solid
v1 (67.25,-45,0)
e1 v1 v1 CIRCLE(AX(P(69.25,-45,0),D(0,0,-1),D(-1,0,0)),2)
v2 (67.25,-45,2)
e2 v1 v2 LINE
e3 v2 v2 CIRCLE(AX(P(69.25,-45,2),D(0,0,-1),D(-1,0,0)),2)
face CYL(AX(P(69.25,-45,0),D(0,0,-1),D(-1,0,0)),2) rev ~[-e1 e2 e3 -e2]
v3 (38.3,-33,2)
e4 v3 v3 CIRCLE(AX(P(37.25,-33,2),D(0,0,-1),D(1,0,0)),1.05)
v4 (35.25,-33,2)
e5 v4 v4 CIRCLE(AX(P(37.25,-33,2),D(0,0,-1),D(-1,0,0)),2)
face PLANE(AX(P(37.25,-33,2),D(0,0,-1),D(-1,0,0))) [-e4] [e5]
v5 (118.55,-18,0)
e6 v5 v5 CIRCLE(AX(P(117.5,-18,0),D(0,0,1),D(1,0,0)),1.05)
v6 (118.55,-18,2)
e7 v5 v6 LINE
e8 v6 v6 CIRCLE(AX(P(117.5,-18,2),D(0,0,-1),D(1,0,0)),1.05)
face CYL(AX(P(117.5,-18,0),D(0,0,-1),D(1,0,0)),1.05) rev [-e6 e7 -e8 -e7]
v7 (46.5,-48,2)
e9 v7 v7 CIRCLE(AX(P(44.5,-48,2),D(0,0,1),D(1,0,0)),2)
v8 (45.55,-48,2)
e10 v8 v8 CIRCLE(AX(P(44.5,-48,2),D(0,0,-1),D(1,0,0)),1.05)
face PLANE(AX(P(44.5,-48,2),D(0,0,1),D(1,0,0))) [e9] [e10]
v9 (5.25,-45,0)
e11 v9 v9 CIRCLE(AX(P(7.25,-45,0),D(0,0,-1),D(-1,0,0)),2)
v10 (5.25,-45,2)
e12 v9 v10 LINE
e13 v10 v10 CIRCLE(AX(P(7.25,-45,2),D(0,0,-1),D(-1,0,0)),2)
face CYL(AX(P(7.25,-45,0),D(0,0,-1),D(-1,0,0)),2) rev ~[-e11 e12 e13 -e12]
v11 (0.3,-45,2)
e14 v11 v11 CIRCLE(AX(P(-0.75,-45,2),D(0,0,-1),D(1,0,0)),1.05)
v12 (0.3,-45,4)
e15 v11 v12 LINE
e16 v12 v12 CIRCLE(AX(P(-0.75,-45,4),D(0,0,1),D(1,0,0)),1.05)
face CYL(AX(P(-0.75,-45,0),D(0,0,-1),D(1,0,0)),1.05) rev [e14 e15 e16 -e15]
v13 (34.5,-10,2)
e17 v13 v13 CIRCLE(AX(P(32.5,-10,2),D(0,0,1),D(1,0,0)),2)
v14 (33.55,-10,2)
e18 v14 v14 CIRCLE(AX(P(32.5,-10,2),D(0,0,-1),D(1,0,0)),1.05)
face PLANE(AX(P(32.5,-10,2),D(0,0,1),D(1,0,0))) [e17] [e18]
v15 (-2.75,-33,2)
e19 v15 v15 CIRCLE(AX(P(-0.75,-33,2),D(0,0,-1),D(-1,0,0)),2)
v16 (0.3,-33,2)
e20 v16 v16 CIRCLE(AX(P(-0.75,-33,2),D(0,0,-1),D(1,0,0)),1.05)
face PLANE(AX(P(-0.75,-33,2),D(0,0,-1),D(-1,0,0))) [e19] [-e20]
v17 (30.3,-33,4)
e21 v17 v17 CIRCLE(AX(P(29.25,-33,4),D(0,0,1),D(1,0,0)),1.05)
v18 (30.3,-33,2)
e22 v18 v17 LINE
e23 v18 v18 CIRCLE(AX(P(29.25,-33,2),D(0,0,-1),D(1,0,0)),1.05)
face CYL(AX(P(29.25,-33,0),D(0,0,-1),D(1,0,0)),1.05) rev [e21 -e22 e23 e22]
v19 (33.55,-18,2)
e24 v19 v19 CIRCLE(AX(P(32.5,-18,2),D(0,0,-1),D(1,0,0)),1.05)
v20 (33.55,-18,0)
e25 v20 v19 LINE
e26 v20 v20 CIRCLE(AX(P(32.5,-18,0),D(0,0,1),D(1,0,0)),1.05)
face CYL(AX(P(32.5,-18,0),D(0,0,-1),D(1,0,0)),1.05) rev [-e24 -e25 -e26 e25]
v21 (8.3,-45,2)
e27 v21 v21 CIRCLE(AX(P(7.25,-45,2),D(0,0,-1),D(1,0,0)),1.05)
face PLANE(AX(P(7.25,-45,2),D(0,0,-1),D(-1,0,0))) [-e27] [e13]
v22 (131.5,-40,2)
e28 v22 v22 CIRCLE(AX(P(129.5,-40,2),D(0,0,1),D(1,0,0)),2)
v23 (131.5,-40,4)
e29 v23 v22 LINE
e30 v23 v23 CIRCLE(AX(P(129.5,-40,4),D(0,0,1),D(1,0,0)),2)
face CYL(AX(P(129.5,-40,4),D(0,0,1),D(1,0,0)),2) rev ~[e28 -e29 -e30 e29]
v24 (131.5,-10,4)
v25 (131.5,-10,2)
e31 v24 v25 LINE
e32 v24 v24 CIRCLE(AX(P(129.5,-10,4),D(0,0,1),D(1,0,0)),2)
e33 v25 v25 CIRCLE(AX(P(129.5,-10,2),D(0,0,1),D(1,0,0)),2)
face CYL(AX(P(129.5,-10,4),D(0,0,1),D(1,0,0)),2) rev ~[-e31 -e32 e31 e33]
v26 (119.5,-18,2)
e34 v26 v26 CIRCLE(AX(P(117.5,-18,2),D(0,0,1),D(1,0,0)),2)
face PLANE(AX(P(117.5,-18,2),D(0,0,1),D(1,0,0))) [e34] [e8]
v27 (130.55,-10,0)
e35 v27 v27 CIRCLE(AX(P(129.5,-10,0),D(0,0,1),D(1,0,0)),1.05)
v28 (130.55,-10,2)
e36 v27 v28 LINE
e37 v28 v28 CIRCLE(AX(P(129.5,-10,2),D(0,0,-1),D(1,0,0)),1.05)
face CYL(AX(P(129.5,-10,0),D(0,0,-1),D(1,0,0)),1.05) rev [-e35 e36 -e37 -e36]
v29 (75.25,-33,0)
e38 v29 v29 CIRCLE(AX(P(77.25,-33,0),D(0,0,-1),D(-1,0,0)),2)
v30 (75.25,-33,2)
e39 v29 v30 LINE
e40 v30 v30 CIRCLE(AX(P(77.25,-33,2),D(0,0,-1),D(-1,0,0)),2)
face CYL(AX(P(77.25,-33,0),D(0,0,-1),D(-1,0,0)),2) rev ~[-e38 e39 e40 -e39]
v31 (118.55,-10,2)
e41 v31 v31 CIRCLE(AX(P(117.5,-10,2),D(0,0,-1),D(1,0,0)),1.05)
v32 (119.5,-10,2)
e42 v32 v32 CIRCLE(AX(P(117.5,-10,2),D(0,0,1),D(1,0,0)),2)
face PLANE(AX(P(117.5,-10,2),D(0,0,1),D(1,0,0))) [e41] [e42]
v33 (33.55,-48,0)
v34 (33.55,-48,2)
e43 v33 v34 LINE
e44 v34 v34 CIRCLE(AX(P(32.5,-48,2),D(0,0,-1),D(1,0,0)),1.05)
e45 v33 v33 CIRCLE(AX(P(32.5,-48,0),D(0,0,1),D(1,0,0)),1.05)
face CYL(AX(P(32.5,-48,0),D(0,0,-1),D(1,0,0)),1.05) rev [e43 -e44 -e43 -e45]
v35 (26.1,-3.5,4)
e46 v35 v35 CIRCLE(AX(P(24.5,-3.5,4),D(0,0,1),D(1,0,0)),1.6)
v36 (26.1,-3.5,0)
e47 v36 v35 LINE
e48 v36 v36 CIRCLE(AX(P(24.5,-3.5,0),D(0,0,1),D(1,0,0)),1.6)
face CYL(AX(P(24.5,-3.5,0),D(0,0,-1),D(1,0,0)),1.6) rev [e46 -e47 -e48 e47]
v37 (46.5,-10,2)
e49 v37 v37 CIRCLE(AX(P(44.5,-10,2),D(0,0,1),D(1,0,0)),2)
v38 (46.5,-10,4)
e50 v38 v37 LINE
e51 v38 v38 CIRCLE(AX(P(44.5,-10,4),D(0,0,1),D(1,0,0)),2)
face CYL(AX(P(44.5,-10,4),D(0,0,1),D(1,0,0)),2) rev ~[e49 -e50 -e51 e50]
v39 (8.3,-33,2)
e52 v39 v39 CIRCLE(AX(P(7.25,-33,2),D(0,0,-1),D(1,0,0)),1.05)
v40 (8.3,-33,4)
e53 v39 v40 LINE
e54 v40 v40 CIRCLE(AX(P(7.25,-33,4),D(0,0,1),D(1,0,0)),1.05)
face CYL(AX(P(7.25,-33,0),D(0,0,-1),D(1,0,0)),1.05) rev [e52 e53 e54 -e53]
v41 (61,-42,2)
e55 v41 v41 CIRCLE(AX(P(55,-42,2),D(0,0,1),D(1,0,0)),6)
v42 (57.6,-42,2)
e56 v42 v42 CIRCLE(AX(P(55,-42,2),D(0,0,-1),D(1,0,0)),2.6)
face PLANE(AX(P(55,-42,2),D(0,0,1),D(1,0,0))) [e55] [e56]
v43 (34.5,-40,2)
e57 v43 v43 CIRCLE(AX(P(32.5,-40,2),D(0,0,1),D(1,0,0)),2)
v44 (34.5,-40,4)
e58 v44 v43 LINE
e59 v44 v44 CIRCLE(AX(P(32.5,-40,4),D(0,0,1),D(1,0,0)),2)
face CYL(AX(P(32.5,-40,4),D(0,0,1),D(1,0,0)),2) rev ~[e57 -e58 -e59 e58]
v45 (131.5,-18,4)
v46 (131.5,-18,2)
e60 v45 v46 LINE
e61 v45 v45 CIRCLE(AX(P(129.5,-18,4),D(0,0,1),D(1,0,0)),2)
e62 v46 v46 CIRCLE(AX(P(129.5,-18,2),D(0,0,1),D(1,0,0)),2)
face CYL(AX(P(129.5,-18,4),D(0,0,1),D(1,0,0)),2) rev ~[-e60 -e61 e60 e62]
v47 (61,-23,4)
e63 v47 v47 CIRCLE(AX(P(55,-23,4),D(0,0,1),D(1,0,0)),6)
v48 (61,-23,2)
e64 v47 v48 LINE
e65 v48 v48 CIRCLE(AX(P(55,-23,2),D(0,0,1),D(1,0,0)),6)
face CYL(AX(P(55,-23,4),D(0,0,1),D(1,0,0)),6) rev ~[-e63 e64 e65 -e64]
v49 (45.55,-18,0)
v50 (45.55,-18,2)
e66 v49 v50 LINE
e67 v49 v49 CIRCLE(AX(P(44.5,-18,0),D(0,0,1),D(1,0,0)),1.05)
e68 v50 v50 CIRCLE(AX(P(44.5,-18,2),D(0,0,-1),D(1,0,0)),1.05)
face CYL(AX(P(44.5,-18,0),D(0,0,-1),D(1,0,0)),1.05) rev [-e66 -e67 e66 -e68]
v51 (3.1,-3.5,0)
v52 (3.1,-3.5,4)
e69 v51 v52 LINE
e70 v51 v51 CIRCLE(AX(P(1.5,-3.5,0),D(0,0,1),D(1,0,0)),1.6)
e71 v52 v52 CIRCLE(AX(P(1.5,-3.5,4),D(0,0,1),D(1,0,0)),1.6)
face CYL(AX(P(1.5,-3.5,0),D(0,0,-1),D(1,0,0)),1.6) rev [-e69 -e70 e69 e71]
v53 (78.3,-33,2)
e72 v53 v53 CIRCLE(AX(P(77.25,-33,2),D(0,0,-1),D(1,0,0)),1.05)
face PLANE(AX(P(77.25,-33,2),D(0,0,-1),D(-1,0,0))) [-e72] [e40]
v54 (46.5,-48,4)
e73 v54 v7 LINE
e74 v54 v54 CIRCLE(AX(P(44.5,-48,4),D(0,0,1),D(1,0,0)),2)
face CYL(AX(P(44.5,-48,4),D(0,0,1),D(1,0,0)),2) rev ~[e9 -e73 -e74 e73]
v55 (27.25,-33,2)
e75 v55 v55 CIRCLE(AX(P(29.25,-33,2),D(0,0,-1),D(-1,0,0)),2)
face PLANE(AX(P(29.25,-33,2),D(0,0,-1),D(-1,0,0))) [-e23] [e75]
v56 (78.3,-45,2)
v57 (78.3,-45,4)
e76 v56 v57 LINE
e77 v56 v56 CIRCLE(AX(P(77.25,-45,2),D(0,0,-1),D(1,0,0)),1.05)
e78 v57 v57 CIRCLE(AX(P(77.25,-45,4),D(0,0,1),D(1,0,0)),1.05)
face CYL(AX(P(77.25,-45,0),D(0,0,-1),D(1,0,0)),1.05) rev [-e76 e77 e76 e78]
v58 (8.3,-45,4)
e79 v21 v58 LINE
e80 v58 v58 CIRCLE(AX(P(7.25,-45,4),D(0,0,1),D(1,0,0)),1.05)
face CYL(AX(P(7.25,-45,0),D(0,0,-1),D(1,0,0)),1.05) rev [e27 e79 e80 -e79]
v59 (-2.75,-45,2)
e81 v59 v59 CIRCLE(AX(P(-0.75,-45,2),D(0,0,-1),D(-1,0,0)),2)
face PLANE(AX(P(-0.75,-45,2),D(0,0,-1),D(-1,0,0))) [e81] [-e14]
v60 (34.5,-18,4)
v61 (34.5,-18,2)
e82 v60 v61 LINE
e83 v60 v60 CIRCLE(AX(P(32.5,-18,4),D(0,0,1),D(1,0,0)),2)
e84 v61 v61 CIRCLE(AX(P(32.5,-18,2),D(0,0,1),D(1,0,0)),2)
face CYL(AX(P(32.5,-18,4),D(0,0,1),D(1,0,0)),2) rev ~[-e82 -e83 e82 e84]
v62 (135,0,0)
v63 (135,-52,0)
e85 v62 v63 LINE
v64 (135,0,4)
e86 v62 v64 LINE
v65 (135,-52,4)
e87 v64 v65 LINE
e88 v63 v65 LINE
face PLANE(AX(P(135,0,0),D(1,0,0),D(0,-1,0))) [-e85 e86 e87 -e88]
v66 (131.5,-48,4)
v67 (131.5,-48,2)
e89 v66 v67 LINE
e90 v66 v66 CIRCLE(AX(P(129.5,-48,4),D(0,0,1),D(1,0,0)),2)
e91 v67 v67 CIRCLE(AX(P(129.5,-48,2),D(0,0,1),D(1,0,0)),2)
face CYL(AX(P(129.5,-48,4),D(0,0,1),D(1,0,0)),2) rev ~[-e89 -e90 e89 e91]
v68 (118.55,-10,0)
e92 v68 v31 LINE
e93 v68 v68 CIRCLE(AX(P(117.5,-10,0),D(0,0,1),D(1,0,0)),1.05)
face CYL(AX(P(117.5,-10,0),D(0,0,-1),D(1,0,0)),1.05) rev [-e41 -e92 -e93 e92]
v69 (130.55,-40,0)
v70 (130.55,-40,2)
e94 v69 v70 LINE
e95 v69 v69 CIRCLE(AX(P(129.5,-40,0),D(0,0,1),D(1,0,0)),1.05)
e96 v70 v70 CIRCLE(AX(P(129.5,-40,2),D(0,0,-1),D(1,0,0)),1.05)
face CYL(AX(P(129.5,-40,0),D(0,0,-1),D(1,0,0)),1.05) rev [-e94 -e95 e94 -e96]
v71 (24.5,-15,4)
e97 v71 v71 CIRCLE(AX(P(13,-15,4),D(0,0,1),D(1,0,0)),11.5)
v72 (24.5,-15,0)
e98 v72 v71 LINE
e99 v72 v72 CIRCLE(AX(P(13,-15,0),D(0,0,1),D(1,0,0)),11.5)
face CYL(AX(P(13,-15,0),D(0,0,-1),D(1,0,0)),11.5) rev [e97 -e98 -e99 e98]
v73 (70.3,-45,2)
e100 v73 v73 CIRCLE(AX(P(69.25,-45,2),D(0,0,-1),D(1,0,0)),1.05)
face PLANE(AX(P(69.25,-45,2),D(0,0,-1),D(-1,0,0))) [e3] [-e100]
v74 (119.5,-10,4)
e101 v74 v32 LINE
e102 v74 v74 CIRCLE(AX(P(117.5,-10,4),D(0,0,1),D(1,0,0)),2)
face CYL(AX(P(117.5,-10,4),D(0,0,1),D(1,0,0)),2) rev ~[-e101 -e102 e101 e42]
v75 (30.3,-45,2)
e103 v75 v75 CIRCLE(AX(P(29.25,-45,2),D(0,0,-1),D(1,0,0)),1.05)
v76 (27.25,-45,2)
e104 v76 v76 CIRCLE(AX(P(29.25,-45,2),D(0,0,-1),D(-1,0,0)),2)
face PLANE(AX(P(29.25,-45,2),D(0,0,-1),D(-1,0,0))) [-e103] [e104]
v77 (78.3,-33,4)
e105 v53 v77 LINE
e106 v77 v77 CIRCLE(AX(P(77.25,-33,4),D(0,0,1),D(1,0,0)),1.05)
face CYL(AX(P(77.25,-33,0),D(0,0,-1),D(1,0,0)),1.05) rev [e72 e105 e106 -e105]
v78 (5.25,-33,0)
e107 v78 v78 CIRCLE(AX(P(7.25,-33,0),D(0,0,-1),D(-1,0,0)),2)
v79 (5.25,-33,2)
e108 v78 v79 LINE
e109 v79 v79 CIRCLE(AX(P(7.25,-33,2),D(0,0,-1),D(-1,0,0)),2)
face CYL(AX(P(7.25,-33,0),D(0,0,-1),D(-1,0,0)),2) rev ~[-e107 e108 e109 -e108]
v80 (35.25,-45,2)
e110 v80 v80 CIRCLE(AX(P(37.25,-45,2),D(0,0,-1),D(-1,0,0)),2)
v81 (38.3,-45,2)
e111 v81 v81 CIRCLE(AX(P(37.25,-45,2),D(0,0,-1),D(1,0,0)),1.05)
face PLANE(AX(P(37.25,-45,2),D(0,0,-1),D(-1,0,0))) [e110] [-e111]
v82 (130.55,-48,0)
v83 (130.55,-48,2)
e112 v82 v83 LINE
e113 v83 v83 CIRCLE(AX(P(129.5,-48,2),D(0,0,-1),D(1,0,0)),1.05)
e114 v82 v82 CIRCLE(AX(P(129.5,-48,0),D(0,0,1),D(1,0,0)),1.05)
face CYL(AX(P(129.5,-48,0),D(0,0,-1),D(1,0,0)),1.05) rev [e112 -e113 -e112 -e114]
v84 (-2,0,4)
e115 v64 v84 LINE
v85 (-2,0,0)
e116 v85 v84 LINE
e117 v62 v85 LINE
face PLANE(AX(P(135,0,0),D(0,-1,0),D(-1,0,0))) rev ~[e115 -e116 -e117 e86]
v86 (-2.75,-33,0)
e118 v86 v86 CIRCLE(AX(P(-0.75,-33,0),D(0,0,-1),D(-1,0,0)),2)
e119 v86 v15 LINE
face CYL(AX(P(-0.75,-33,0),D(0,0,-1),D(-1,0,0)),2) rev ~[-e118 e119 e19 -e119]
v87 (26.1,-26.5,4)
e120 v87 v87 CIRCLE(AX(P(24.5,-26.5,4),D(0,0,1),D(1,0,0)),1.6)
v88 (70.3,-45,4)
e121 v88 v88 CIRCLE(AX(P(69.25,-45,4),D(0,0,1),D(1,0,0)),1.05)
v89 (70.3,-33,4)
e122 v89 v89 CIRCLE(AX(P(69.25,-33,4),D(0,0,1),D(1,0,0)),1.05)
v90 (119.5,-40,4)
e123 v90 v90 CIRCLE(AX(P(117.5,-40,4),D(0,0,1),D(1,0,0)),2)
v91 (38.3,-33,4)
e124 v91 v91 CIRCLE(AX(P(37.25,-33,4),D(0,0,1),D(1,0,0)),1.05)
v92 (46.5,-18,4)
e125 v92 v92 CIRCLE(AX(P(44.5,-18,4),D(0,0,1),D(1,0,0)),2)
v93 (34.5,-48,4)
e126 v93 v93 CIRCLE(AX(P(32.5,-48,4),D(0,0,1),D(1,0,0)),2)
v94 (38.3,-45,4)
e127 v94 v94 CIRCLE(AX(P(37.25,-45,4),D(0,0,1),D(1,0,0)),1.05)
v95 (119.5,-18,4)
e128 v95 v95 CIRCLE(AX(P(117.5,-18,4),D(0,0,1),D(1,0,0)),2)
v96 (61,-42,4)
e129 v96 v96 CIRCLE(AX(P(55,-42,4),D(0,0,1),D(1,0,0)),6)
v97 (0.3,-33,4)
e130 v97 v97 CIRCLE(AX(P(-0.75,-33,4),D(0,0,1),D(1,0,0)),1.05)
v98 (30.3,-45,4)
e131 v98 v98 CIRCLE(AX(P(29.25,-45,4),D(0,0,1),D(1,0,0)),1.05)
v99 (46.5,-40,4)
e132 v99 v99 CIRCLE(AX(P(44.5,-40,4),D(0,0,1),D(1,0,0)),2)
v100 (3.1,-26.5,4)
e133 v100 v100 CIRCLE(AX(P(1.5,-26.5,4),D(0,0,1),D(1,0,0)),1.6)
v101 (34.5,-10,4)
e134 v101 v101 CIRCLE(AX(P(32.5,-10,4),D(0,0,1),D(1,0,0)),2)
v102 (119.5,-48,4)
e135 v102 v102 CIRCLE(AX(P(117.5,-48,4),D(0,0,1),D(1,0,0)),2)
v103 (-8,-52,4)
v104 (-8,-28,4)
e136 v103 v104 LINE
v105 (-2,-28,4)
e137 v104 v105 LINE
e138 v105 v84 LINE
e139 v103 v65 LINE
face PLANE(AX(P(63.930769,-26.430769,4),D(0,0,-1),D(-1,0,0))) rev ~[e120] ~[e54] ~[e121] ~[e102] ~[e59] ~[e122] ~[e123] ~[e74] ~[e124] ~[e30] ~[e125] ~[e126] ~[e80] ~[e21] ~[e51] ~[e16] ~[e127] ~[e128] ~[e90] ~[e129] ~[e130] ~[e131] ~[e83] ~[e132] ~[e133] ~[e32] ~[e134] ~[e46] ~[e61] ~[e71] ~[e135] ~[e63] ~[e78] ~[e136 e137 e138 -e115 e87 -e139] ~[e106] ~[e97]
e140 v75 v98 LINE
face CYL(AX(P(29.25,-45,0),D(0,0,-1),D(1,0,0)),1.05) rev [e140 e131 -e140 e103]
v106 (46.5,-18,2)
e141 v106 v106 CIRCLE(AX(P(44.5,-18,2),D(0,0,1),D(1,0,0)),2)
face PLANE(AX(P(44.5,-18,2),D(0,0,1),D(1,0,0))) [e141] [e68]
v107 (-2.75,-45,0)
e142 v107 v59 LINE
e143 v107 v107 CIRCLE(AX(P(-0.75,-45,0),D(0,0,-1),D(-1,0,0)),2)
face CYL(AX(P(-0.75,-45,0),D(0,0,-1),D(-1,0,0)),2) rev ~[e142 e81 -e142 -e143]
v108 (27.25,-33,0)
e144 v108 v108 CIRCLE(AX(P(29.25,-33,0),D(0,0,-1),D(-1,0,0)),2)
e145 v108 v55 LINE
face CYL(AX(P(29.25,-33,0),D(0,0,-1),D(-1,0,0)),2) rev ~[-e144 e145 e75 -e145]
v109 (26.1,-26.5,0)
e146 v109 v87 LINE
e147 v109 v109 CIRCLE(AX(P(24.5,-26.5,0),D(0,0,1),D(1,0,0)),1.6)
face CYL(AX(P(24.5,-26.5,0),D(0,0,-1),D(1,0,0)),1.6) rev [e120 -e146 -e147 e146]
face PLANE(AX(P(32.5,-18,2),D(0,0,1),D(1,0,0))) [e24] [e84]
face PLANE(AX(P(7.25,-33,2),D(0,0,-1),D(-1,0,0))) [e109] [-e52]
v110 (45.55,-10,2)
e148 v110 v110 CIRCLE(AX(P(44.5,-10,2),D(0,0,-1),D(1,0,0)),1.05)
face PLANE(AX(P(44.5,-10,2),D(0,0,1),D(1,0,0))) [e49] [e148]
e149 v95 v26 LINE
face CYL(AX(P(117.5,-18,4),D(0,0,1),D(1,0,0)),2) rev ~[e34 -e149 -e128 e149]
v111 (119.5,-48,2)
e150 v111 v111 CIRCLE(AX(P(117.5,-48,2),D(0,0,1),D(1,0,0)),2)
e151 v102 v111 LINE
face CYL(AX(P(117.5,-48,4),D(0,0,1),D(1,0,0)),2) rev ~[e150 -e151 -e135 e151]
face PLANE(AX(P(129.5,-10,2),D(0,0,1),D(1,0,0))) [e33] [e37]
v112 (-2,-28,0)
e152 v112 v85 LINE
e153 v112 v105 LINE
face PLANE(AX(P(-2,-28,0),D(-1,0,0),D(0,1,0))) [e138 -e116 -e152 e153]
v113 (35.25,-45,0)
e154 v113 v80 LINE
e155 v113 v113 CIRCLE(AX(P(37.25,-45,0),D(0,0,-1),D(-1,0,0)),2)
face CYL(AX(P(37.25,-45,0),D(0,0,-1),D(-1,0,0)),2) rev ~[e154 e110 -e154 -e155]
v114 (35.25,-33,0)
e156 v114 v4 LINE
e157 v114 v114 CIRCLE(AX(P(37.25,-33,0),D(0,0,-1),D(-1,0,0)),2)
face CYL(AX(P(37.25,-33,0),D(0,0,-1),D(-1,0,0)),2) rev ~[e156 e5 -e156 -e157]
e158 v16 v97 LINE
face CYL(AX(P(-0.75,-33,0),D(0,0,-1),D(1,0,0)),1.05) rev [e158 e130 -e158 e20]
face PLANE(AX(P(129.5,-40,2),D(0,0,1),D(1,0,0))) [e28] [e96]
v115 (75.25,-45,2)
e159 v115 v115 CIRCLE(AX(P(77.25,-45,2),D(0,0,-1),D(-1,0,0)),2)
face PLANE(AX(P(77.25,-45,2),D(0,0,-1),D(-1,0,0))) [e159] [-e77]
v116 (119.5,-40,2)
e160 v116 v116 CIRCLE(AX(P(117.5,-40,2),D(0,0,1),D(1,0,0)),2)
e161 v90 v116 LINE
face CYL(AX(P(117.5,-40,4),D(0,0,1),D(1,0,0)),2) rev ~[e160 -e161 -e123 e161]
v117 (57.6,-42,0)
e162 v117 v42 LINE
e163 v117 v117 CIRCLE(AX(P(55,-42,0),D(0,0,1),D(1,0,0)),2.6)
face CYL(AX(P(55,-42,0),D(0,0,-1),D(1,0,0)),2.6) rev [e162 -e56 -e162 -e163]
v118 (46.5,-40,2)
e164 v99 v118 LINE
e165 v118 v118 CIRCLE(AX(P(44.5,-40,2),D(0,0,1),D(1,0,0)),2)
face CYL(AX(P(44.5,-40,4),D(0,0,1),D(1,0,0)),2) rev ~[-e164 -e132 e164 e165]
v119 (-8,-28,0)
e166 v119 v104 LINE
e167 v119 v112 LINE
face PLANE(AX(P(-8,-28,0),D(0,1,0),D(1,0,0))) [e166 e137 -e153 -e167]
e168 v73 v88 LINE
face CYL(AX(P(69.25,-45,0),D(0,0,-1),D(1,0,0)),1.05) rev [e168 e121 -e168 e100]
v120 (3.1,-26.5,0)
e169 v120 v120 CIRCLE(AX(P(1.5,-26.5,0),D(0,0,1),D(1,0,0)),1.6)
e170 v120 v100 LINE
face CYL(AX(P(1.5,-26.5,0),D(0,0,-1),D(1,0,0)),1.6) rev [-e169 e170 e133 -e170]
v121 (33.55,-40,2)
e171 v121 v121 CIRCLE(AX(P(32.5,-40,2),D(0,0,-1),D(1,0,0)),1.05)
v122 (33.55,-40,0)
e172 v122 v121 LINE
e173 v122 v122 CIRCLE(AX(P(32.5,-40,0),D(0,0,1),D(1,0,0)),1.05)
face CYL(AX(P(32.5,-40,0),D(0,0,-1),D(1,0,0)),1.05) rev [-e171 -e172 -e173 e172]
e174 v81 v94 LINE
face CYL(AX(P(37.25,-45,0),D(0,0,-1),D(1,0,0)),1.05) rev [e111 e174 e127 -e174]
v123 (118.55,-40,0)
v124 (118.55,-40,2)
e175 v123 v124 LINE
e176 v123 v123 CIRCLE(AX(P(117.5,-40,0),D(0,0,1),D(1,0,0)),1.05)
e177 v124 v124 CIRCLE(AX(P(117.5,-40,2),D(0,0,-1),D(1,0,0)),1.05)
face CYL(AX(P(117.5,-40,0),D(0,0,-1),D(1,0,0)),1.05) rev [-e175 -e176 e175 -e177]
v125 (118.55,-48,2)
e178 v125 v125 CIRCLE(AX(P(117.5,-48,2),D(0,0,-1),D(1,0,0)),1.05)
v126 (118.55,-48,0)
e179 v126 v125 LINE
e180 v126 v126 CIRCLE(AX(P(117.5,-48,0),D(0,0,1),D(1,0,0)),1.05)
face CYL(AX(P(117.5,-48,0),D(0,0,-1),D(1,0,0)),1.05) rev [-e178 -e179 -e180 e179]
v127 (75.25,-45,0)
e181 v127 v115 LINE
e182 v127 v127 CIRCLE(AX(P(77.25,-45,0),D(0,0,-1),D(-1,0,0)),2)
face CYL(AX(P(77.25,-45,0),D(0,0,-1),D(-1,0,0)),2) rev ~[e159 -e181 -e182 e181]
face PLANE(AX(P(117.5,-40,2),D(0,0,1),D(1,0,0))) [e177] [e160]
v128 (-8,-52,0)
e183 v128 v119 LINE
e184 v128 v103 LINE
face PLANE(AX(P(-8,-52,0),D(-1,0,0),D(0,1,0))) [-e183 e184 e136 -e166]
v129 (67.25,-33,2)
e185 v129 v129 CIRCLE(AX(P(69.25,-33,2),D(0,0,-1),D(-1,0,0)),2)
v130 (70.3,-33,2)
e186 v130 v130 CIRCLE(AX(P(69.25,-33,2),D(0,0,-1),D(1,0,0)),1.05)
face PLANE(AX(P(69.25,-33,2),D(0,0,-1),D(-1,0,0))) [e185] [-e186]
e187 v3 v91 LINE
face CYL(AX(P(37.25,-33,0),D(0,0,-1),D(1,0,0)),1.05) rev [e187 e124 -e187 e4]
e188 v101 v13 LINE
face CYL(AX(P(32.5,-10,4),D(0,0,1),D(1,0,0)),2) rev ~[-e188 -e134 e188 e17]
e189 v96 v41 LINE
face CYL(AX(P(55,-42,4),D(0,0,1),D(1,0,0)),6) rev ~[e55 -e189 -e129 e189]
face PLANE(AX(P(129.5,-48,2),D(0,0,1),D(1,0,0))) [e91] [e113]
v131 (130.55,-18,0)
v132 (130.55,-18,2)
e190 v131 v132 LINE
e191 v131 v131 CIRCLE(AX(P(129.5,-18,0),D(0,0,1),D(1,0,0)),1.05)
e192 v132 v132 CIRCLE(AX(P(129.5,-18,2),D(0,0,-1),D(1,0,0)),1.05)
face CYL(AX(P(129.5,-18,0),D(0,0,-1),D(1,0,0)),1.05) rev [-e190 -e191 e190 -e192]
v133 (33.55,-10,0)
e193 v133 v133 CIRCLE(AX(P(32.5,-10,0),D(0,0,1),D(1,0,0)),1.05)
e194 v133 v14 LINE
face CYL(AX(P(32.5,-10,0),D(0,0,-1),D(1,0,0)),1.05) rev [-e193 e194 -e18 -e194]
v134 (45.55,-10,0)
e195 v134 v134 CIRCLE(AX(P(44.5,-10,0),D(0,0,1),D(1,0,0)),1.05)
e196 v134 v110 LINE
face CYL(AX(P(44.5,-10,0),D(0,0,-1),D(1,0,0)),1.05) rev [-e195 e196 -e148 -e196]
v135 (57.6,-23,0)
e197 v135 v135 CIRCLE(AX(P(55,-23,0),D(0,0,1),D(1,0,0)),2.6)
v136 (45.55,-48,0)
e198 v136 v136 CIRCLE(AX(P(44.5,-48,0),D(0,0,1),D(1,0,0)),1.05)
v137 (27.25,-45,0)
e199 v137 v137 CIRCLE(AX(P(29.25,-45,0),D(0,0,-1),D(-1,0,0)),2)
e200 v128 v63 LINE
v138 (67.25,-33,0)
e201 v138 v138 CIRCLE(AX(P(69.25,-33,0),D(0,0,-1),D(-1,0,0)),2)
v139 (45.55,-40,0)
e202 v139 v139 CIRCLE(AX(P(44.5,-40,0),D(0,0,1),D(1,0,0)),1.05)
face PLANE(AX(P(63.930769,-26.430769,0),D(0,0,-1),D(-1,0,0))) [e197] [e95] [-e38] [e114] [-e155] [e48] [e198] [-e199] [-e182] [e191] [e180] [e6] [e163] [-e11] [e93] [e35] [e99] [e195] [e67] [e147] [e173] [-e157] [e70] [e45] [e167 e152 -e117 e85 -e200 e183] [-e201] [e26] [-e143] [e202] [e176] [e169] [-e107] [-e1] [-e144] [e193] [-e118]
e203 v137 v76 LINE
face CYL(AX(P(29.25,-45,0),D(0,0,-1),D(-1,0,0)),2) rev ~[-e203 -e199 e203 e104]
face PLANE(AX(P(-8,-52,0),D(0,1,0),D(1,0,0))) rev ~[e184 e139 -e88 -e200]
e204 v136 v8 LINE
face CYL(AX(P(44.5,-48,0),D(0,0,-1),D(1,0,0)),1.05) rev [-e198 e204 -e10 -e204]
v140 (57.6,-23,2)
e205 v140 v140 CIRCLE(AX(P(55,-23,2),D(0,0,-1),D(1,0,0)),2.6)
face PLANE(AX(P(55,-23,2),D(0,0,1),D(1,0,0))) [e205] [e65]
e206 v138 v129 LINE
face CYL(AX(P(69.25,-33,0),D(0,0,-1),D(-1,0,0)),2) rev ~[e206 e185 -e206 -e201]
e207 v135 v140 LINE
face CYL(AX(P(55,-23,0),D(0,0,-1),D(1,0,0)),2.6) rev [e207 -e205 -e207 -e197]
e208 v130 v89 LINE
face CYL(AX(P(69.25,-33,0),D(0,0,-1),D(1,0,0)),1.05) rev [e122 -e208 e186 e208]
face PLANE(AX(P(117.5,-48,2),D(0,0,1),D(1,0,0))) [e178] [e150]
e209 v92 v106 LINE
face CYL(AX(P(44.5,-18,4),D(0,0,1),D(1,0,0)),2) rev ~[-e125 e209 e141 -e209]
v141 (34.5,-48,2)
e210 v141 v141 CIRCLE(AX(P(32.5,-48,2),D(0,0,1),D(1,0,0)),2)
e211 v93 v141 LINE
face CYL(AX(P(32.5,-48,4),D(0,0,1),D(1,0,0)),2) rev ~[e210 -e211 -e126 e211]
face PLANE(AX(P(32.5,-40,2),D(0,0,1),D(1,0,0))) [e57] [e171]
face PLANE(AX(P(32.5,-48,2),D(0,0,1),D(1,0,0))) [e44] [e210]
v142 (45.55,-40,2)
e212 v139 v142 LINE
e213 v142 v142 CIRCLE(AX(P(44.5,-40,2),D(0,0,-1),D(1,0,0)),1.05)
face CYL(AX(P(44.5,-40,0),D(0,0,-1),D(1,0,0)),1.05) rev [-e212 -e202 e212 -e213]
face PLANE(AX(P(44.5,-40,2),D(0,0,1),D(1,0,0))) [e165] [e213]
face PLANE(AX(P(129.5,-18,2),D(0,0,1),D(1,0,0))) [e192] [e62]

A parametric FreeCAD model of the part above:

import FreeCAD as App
import Part
import Sketcher

V = App.Vector
Q = App.Units.Quantity


def add_polygon(sketch, points):
    """Adds a closed chain of lines whose ends are joined by coincident constraints."""
    first, n = sketch.GeometryCount, len(points)
    for a, b in zip(points, points[1:] + points[:1]):
        sketch.addGeometry(Part.LineSegment(App.Vector(*a, 0), App.Vector(*b, 0)), False)
    for i in range(n):
        sketch.addConstraint(Sketcher.Constraint("Coincident", first + i, 2, first + (i + 1) % n, 1))

doc = App.newDocument("Part")
params = doc.addObject("Spreadsheet::Sheet", "Params")
for row, (alias, value) in enumerate([
    ("sketch1_diameter", "23 mm"),
    ("sketch1_diameter2", "2.1 mm"),
    ("sketch1_diameter3", "5.2 mm"),
    ("sketch1_diameter4", "3.2 mm"),
    ("sketch1_width", "137 mm"),
    ("pad1_length", "4 mm"),
    ("sketch2_diameter", "4 mm"),
    ("sketch2_diameter2", "12 mm"),
    ("pocket1_length", "2 mm"),
    ("sketch3_diameter", "4 mm"),
    ("pocket2_length", "2 mm"),
], start=1):
    params.set(f"A{row}", alias)
    params.set(f"B{row}", "=" + value)
    params.setAlias(f"B{row}", alias)

body = doc.addObject("PartDesign::Body", "Body")

# Sketch on XY plane
sketch1 = body.newObject("Sketcher::SketchObject", "Sketch")
sketch1.AttachmentSupport = (doc.getObject("XY_Plane"), [""])
sketch1.MapMode = "FlatFace"
add_polygon(sketch1, [(135, 0), (-2, 0), (-2, -28), (-8, -28), (-8, -52), (135, -52)])  # lines 0-5
sketch1.addGeometry(Part.Circle(V(129.5, -48, 0), V(0, 0, 1), 1.1), False)  # 6
sketch1.addGeometry(Part.Circle(V(117.5, -48, 0), V(0, 0, 1), 1.1), False)  # 7
sketch1.addGeometry(Part.Circle(V(129.5, -40, 0), V(0, 0, 1), 1.1), False)  # 8
sketch1.addGeometry(Part.Circle(V(117.5, -40, 0), V(0, 0, 1), 1.1), False)  # 9
sketch1.addGeometry(Part.Circle(V(77.2, -45, 0), V(0, 0, 1), 1.1), False)  # 10
sketch1.addGeometry(Part.Circle(V(69.2, -45, 0), V(0, 0, 1), 1.1), False)  # 11
sketch1.addGeometry(Part.Circle(V(77.2, -33, 0), V(0, 0, 1), 1.1), False)  # 12
sketch1.addGeometry(Part.Circle(V(69.2, -33, 0), V(0, 0, 1), 1.1), False)  # 13
sketch1.addGeometry(Part.Circle(V(44.5, -48, 0), V(0, 0, 1), 1.1), False)  # 14
sketch1.addGeometry(Part.Circle(V(32.5, -48, 0), V(0, 0, 1), 1.1), False)  # 15
sketch1.addGeometry(Part.Circle(V(37.2, -45, 0), V(0, 0, 1), 1.1), False)  # 16
sketch1.addGeometry(Part.Circle(V(55, -42, 0), V(0, 0, 1), 2.6), False)  # 17
sketch1.addGeometry(Part.Circle(V(44.5, -40, 0), V(0, 0, 1), 1.1), False)  # 18
sketch1.addGeometry(Part.Circle(V(32.5, -40, 0), V(0, 0, 1), 1.1), False)  # 19
sketch1.addGeometry(Part.Circle(V(29.2, -45, 0), V(0, 0, 1), 1.1), False)  # 20
sketch1.addGeometry(Part.Circle(V(7.2, -45, 0), V(0, 0, 1), 1.1), False)  # 21
sketch1.addGeometry(Part.Circle(V(-0.8, -45, 0), V(0, 0, 1), 1.1), False)  # 22
sketch1.addGeometry(Part.Circle(V(37.2, -33, 0), V(0, 0, 1), 1.1), False)  # 23
sketch1.addGeometry(Part.Circle(V(29.2, -33, 0), V(0, 0, 1), 1.1), False)  # 24
sketch1.addGeometry(Part.Circle(V(7.2, -33, 0), V(0, 0, 1), 1.1), False)  # 25
sketch1.addGeometry(Part.Circle(V(-0.8, -33, 0), V(0, 0, 1), 1.1), False)  # 26
sketch1.addGeometry(Part.Circle(V(24.5, -26.5, 0), V(0, 0, 1), 1.6), False)  # 27
sketch1.addGeometry(Part.Circle(V(1.5, -26.5, 0), V(0, 0, 1), 1.6), False)  # 28
sketch1.addGeometry(Part.Circle(V(129.5, -18, 0), V(0, 0, 1), 1.1), False)  # 29
sketch1.addGeometry(Part.Circle(V(117.5, -18, 0), V(0, 0, 1), 1.1), False)  # 30
sketch1.addGeometry(Part.Circle(V(129.5, -10, 0), V(0, 0, 1), 1.1), False)  # 31
sketch1.addGeometry(Part.Circle(V(117.5, -10, 0), V(0, 0, 1), 1.1), False)  # 32
sketch1.addGeometry(Part.Circle(V(55, -23, 0), V(0, 0, 1), 2.6), False)  # 33
sketch1.addGeometry(Part.Circle(V(44.5, -18, 0), V(0, 0, 1), 1.1), False)  # 34
sketch1.addGeometry(Part.Circle(V(32.5, -18, 0), V(0, 0, 1), 1.1), False)  # 35
sketch1.addGeometry(Part.Circle(V(13, -15, 0), V(0, 0, 1), 11.5), False)  # 36
sketch1.addGeometry(Part.Circle(V(44.5, -10, 0), V(0, 0, 1), 1.1), False)  # 37
sketch1.addGeometry(Part.Circle(V(32.5, -10, 0), V(0, 0, 1), 1.1), False)  # 38
sketch1.addGeometry(Part.Circle(V(24.5, -3.5, 0), V(0, 0, 1), 1.6), False)  # 39
sketch1.addGeometry(Part.Circle(V(1.5, -3.5, 0), V(0, 0, 1), 1.6), False)  # 40
sketch1.addConstraint(Sketcher.Constraint("Horizontal", 0))
sketch1.addConstraint(Sketcher.Constraint("Vertical", 1))
sketch1.addConstraint(Sketcher.Constraint("Horizontal", 2))
sketch1.addConstraint(Sketcher.Constraint("Vertical", 3))
sketch1.addConstraint(Sketcher.Constraint("Horizontal", 4))
sketch1.addConstraint(Sketcher.Constraint("Vertical", 5))
sketch1.addConstraint(Sketcher.Constraint("Equal", 6, 7))
sketch1.addConstraint(Sketcher.Constraint("Equal", 7, 8))
sketch1.addConstraint(Sketcher.Constraint("Equal", 8, 9))
sketch1.addConstraint(Sketcher.Constraint("Equal", 9, 10))
sketch1.addConstraint(Sketcher.Constraint("Equal", 10, 11))
sketch1.addConstraint(Sketcher.Constraint("Equal", 11, 12))
sketch1.addConstraint(Sketcher.Constraint("Equal", 12, 13))
sketch1.addConstraint(Sketcher.Constraint("Equal", 13, 14))
sketch1.addConstraint(Sketcher.Constraint("Equal", 14, 15))
sketch1.addConstraint(Sketcher.Constraint("Equal", 15, 16))
sketch1.addConstraint(Sketcher.Constraint("Equal", 16, 18))
sketch1.addConstraint(Sketcher.Constraint("Equal", 18, 19))
sketch1.addConstraint(Sketcher.Constraint("Equal", 19, 20))
sketch1.addConstraint(Sketcher.Constraint("Equal", 20, 21))
sketch1.addConstraint(Sketcher.Constraint("Equal", 21, 22))
sketch1.addConstraint(Sketcher.Constraint("Equal", 22, 23))
sketch1.addConstraint(Sketcher.Constraint("Equal", 23, 24))
sketch1.addConstraint(Sketcher.Constraint("Equal", 24, 25))
sketch1.addConstraint(Sketcher.Constraint("Equal", 25, 26))
sketch1.addConstraint(Sketcher.Constraint("Equal", 27, 28))
sketch1.addConstraint(Sketcher.Constraint("Equal", 26, 29))
sketch1.addConstraint(Sketcher.Constraint("Equal", 29, 30))
sketch1.addConstraint(Sketcher.Constraint("Equal", 30, 31))
sketch1.addConstraint(Sketcher.Constraint("Equal", 31, 32))
sketch1.addConstraint(Sketcher.Constraint("Equal", 17, 33))
sketch1.addConstraint(Sketcher.Constraint("Equal", 32, 34))
sketch1.addConstraint(Sketcher.Constraint("Equal", 34, 35))
sketch1.addConstraint(Sketcher.Constraint("Equal", 35, 37))
sketch1.addConstraint(Sketcher.Constraint("Equal", 37, 38))
sketch1.addConstraint(Sketcher.Constraint("Equal", 28, 39))
sketch1.addConstraint(Sketcher.Constraint("Equal", 39, 40))
sketch1.addConstraint(Sketcher.Constraint("PointOnObject", 0, 2, -1))
sketch1.addConstraint(Sketcher.Constraint("Horizontal", 6, 3, 7, 3))
sketch1.addConstraint(Sketcher.Constraint("Horizontal", 8, 3, 9, 3))
sketch1.addConstraint(Sketcher.Constraint("Horizontal", 10, 3, 11, 3))
sketch1.addConstraint(Sketcher.Constraint("Horizontal", 12, 3, 13, 3))
sketch1.addConstraint(Sketcher.Constraint("Horizontal", 7, 3, 14, 3))
sketch1.addConstraint(Sketcher.Constraint("Horizontal", 14, 3, 15, 3))
sketch1.addConstraint(Sketcher.Constraint("Horizontal", 11, 3, 16, 3))
sketch1.addConstraint(Sketcher.Constraint("Horizontal", 9, 3, 18, 3))
sketch1.addConstraint(Sketcher.Constraint("Horizontal", 18, 3, 19, 3))
sketch1.addConstraint(Sketcher.Constraint("Horizontal", 16, 3, 20, 3))
sketch1.addConstraint(Sketcher.Constraint("Horizontal", 20, 3, 21, 3))
sketch1.addConstraint(Sketcher.Constraint("Horizontal", 21, 3, 22, 3))
sketch1.addConstraint(Sketcher.Constraint("Horizontal", 13, 3, 23, 3))
sketch1.addConstraint(Sketcher.Constraint("Horizontal", 23, 3, 24, 3))
sketch1.addConstraint(Sketcher.Constraint("Horizontal", 24, 3, 25, 3))
sketch1.addConstraint(Sketcher.Constraint("Horizontal", 25, 3, 26, 3))
sketch1.addConstraint(Sketcher.Constraint("Horizontal", 27, 3, 28, 3))
sketch1.addConstraint(Sketcher.Constraint("Horizontal", 29, 3, 30, 3))
sketch1.addConstraint(Sketcher.Constraint("Horizontal", 31, 3, 32, 3))
sketch1.addConstraint(Sketcher.Constraint("Horizontal", 30, 3, 34, 3))
sketch1.addConstraint(Sketcher.Constraint("Horizontal", 34, 3, 35, 3))
sketch1.addConstraint(Sketcher.Constraint("Horizontal", 32, 3, 37, 3))
sketch1.addConstraint(Sketcher.Constraint("Horizontal", 37, 3, 38, 3))
sketch1.addConstraint(Sketcher.Constraint("Horizontal", 39, 3, 40, 3))
sketch1.addConstraint(Sketcher.Constraint("Vertical", 6, 3, 8, 3))
sketch1.addConstraint(Sketcher.Constraint("Vertical", 7, 3, 9, 3))
sketch1.addConstraint(Sketcher.Constraint("Vertical", 10, 3, 12, 3))
sketch1.addConstraint(Sketcher.Constraint("Vertical", 11, 3, 13, 3))
sketch1.addConstraint(Sketcher.Constraint("Vertical", 14, 3, 18, 3))
sketch1.addConstraint(Sketcher.Constraint("Vertical", 15, 3, 19, 3))
sketch1.addConstraint(Sketcher.Constraint("Vertical", 16, 3, 23, 3))
sketch1.addConstraint(Sketcher.Constraint("Vertical", 20, 3, 24, 3))
sketch1.addConstraint(Sketcher.Constraint("Vertical", 21, 3, 25, 3))
sketch1.addConstraint(Sketcher.Constraint("Vertical", 22, 3, 26, 3))
sketch1.addConstraint(Sketcher.Constraint("Vertical", 8, 3, 29, 3))
sketch1.addConstraint(Sketcher.Constraint("Vertical", 9, 3, 30, 3))
sketch1.addConstraint(Sketcher.Constraint("Vertical", 29, 3, 31, 3))
sketch1.addConstraint(Sketcher.Constraint("Vertical", 30, 3, 32, 3))
sketch1.addConstraint(Sketcher.Constraint("Vertical", 17, 3, 33, 3))
sketch1.addConstraint(Sketcher.Constraint("Vertical", 18, 3, 34, 3))
sketch1.addConstraint(Sketcher.Constraint("Vertical", 19, 3, 35, 3))
sketch1.addConstraint(Sketcher.Constraint("Vertical", 34, 3, 37, 3))
sketch1.addConstraint(Sketcher.Constraint("Vertical", 35, 3, 38, 3))
sketch1.addConstraint(Sketcher.Constraint("Vertical", 27, 3, 39, 3))
sketch1.addConstraint(Sketcher.Constraint("Vertical", 28, 3, 40, 3))
sketch1.addConstraint(Sketcher.Constraint("Diameter", 36, Q("23 mm")))
sketch1.addConstraint(Sketcher.Constraint("Diameter", 6, Q("2.1 mm")))
sketch1.addConstraint(Sketcher.Constraint("Diameter", 17, Q("5.2 mm")))
sketch1.addConstraint(Sketcher.Constraint("Diameter", 27, Q("3.2 mm")))
sketch1.addConstraint(Sketcher.Constraint("DistanceX", 0, 2, 0, 1, Q("137 mm")))
sketch1.addConstraint(Sketcher.Constraint("DistanceX", 2, 2, 2, 1, Q("6 mm")))
sketch1.addConstraint(Sketcher.Constraint("DistanceY", 1, 2, 1, 1, Q("28 mm")))
sketch1.addConstraint(Sketcher.Constraint("DistanceY", 3, 2, 3, 1, Q("24 mm")))
sketch1.addConstraint(Sketcher.Constraint("DistanceY", 6, 3, -1, 1, Q("48 mm")))
sketch1.addConstraint(Sketcher.Constraint("DistanceY", 8, 3, -1, 1, Q("40 mm")))
sketch1.addConstraint(Sketcher.Constraint("DistanceY", 10, 3, -1, 1, Q("45 mm")))
sketch1.addConstraint(Sketcher.Constraint("DistanceY", 12, 3, -1, 1, Q("33 mm")))
sketch1.addConstraint(Sketcher.Constraint("DistanceX", -1, 1, 17, 3, Q("55 mm")))
sketch1.addConstraint(Sketcher.Constraint("DistanceY", 17, 3, -1, 1, Q("42 mm")))
sketch1.addConstraint(Sketcher.Constraint("DistanceY", 29, 3, -1, 1, Q("18 mm")))
sketch1.addConstraint(Sketcher.Constraint("DistanceY", 31, 3, -1, 1, Q("10 mm")))
sketch1.addConstraint(Sketcher.Constraint("DistanceY", 33, 3, -1, 1, Q("23 mm")))
sketch1.addConstraint(Sketcher.Constraint("DistanceX", -1, 1, 36, 3, Q("13 mm")))
sketch1.addConstraint(Sketcher.Constraint("DistanceY", 36, 3, -1, 1, Q("15 mm")))
sketch1.addConstraint(Sketcher.Constraint("DistanceX", 0, 2, -1, 1, Q("2 mm")))
sketch1.addConstraint(Sketcher.Constraint("DistanceX", 7, 3, 6, 3, Q("12 mm")))
sketch1.addConstraint(Sketcher.Constraint("DistanceX", 11, 3, 10, 3, Q("8 mm")))
sketch1.addConstraint(Sketcher.Constraint("DistanceX", 14, 3, 7, 3, Q("73 mm")))
sketch1.addConstraint(Sketcher.Constraint("DistanceX", 15, 3, 14, 3, Q("12 mm")))
sketch1.addConstraint(Sketcher.Constraint("DistanceX", 16, 3, 11, 3, Q("32 mm")))
sketch1.addConstraint(Sketcher.Constraint("DistanceX", 20, 3, 16, 3, Q("8 mm")))
sketch1.addConstraint(Sketcher.Constraint("DistanceX", 21, 3, 20, 3, Q("22 mm")))
sketch1.addConstraint(Sketcher.Constraint("DistanceX", 22, 3, 21, 3, Q("8 mm")))
sketch1.addConstraint(Sketcher.Constraint("DistanceX", 27, 3, 19, 3, Q("8 mm")))
sketch1.addConstraint(Sketcher.Constraint("DistanceX", 28, 3, 27, 3, Q("23 mm")))
sketch1.addConstraint(Sketcher.Constraint("DistanceY", 27, 3, 39, 3, Q("23 mm")))
sketch1.addConstraint(Sketcher.Constraint("DistanceX", -1, 1, 6, 3, Q("129.5 mm")))
sketch1.addConstraint(Sketcher.Constraint("DistanceY", 27, 3, -1, 1, Q("26.5 mm")))
sketch1.addConstraint(Sketcher.Constraint("DistanceX", -1, 1, 10, 3, Q("77.25 mm")))
sketch1.setExpression("Constraints[89]", "Params.sketch1_diameter")
sketch1.setExpression("Constraints[90]", "Params.sketch1_diameter2")
sketch1.setExpression("Constraints[91]", "Params.sketch1_diameter3")
sketch1.setExpression("Constraints[92]", "Params.sketch1_diameter4")
sketch1.setExpression("Constraints[93]", "Params.sketch1_width")
pad1 = body.newObject("PartDesign::Pad", "Pad")
pad1.Profile = sketch1
pad1.setExpression("Length", "Params.pad1_length")

# Sketch on XY plane
sketch2 = body.newObject("Sketcher::SketchObject", "Sketch001")
sketch2.AttachmentSupport = (doc.getObject("XY_Plane"), [""])
sketch2.MapMode = "FlatFace"
sketch2.AttachmentOffset = App.Placement(V(0, 0, 4), App.Rotation())
sketch2.addGeometry(Part.Circle(V(32.5, -10, 0), V(0, 0, 1), 2), False)
sketch2.addGeometry(Part.Circle(V(44.5, -10, 0), V(0, 0, 1), 2), False)
sketch2.addGeometry(Part.Circle(V(32.5, -18, 0), V(0, 0, 1), 2), False)
sketch2.addGeometry(Part.Circle(V(44.5, -18, 0), V(0, 0, 1), 2), False)
sketch2.addGeometry(Part.Circle(V(117.5, -10, 0), V(0, 0, 1), 2), False)
sketch2.addGeometry(Part.Circle(V(129.5, -10, 0), V(0, 0, 1), 2), False)
sketch2.addGeometry(Part.Circle(V(117.5, -18, 0), V(0, 0, 1), 2), False)
sketch2.addGeometry(Part.Circle(V(129.5, -18, 0), V(0, 0, 1), 2), False)
sketch2.addGeometry(Part.Circle(V(32.5, -40, 0), V(0, 0, 1), 2), False)
sketch2.addGeometry(Part.Circle(V(44.5, -40, 0), V(0, 0, 1), 2), False)
sketch2.addGeometry(Part.Circle(V(32.5, -48, 0), V(0, 0, 1), 2), False)
sketch2.addGeometry(Part.Circle(V(44.5, -48, 0), V(0, 0, 1), 2), False)
sketch2.addGeometry(Part.Circle(V(117.5, -40, 0), V(0, 0, 1), 2), False)
sketch2.addGeometry(Part.Circle(V(129.5, -40, 0), V(0, 0, 1), 2), False)
sketch2.addGeometry(Part.Circle(V(117.5, -48, 0), V(0, 0, 1), 2), False)
sketch2.addGeometry(Part.Circle(V(55, -23, 0), V(0, 0, 1), 6), False)
sketch2.addGeometry(Part.Circle(V(129.5, -48, 0), V(0, 0, 1), 2), False)
sketch2.addGeometry(Part.Circle(V(55, -42, 0), V(0, 0, 1), 6), False)
sketch2.addConstraint(Sketcher.Constraint("Equal", 0, 1))
sketch2.addConstraint(Sketcher.Constraint("Equal", 1, 2))
sketch2.addConstraint(Sketcher.Constraint("Equal", 2, 3))
sketch2.addConstraint(Sketcher.Constraint("Equal", 3, 4))
sketch2.addConstraint(Sketcher.Constraint("Equal", 4, 5))
sketch2.addConstraint(Sketcher.Constraint("Equal", 5, 6))
sketch2.addConstraint(Sketcher.Constraint("Equal", 6, 7))
sketch2.addConstraint(Sketcher.Constraint("Equal", 7, 8))
sketch2.addConstraint(Sketcher.Constraint("Equal", 8, 9))
sketch2.addConstraint(Sketcher.Constraint("Equal", 9, 10))
sketch2.addConstraint(Sketcher.Constraint("Equal", 10, 11))
sketch2.addConstraint(Sketcher.Constraint("Equal", 11, 12))
sketch2.addConstraint(Sketcher.Constraint("Equal", 12, 13))
sketch2.addConstraint(Sketcher.Constraint("Equal", 13, 14))
sketch2.addConstraint(Sketcher.Constraint("Equal", 14, 16))
sketch2.addConstraint(Sketcher.Constraint("Equal", 15, 17))
sketch2.addConstraint(Sketcher.Constraint("Horizontal", 0, 3, 1, 3))
sketch2.addConstraint(Sketcher.Constraint("Horizontal", 2, 3, 3, 3))
sketch2.addConstraint(Sketcher.Constraint("Horizontal", 1, 3, 4, 3))
sketch2.addConstraint(Sketcher.Constraint("Horizontal", 4, 3, 5, 3))
sketch2.addConstraint(Sketcher.Constraint("Horizontal", 3, 3, 6, 3))
sketch2.addConstraint(Sketcher.Constraint("Horizontal", 6, 3, 7, 3))
sketch2.addConstraint(Sketcher.Constraint("Horizontal", 8, 3, 9, 3))
sketch2.addConstraint(Sketcher.Constraint("Horizontal", 10, 3, 11, 3))
sketch2.addConstraint(Sketcher.Constraint("Horizontal", 9, 3, 12, 3))
sketch2.addConstraint(Sketcher.Constraint("Horizontal", 12, 3, 13, 3))
sketch2.addConstraint(Sketcher.Constraint("Horizontal", 11, 3, 14, 3))
sketch2.addConstraint(Sketcher.Constraint("Horizontal", 14, 3, 16, 3))
sketch2.addConstraint(Sketcher.Constraint("Vertical", 0, 3, 2, 3))
sketch2.addConstraint(Sketcher.Constraint("Vertical", 1, 3, 3, 3))
sketch2.addConstraint(Sketcher.Constraint("Vertical", 4, 3, 6, 3))
sketch2.addConstraint(Sketcher.Constraint("Vertical", 5, 3, 7, 3))
sketch2.addConstraint(Sketcher.Constraint("Vertical", 2, 3, 8, 3))
sketch2.addConstraint(Sketcher.Constraint("Vertical", 3, 3, 9, 3))
sketch2.addConstraint(Sketcher.Constraint("Vertical", 8, 3, 10, 3))
sketch2.addConstraint(Sketcher.Constraint("Vertical", 9, 3, 11, 3))
sketch2.addConstraint(Sketcher.Constraint("Vertical", 6, 3, 12, 3))
sketch2.addConstraint(Sketcher.Constraint("Vertical", 7, 3, 13, 3))
sketch2.addConstraint(Sketcher.Constraint("Vertical", 12, 3, 14, 3))
sketch2.addConstraint(Sketcher.Constraint("Vertical", 13, 3, 16, 3))
sketch2.addConstraint(Sketcher.Constraint("Vertical", 15, 3, 17, 3))
sketch2.addConstraint(Sketcher.Constraint("Diameter", 0, Q("4 mm")))
sketch2.addConstraint(Sketcher.Constraint("Diameter", 15, Q("12 mm")))
sketch2.addConstraint(Sketcher.Constraint("DistanceY", 0, 3, -1, 1, Q("10 mm")))
sketch2.addConstraint(Sketcher.Constraint("DistanceY", 2, 3, -1, 1, Q("18 mm")))
sketch2.addConstraint(Sketcher.Constraint("DistanceY", 8, 3, -1, 1, Q("40 mm")))
sketch2.addConstraint(Sketcher.Constraint("DistanceY", 10, 3, -1, 1, Q("48 mm")))
sketch2.addConstraint(Sketcher.Constraint("DistanceX", -1, 1, 15, 3, Q("55 mm")))
sketch2.addConstraint(Sketcher.Constraint("DistanceY", 15, 3, -1, 1, Q("23 mm")))
sketch2.addConstraint(Sketcher.Constraint("DistanceY", 17, 3, -1, 1, Q("42 mm")))
sketch2.addConstraint(Sketcher.Constraint("DistanceX", 0, 3, 1, 3, Q("12 mm")))
sketch2.addConstraint(Sketcher.Constraint("DistanceX", 1, 3, 4, 3, Q("73 mm")))
sketch2.addConstraint(Sketcher.Constraint("DistanceX", 4, 3, 5, 3, Q("12 mm")))
sketch2.addConstraint(Sketcher.Constraint("DistanceX", -1, 1, 0, 3, Q("32.5 mm")))
sketch2.setExpression("Constraints[41]", "Params.sketch2_diameter")
sketch2.setExpression("Constraints[42]", "Params.sketch2_diameter2")
pocket1 = body.newObject("PartDesign::Pocket", "Pocket")
pocket1.Profile = sketch2
pocket1.setExpression("Length", "Params.pocket1_length")

# Sketch on XY plane
sketch3 = body.newObject("Sketcher::SketchObject", "Sketch002")
sketch3.AttachmentSupport = (doc.getObject("XY_Plane"), [""])
sketch3.MapMode = "FlatFace"
sketch3.addGeometry(Part.Circle(V(37.2, -33, 0), V(0, 0, 1), 2), False)
sketch3.addGeometry(Part.Circle(V(29.2, -33, 0), V(0, 0, 1), 2), False)
sketch3.addGeometry(Part.Circle(V(37.2, -45, 0), V(0, 0, 1), 2), False)
sketch3.addGeometry(Part.Circle(V(29.2, -45, 0), V(0, 0, 1), 2), False)
sketch3.addGeometry(Part.Circle(V(7.2, -33, 0), V(0, 0, 1), 2), False)
sketch3.addGeometry(Part.Circle(V(-0.8, -33, 0), V(0, 0, 1), 2), False)
sketch3.addGeometry(Part.Circle(V(7.2, -45, 0), V(0, 0, 1), 2), False)
sketch3.addGeometry(Part.Circle(V(-0.8, -45, 0), V(0, 0, 1), 2), False)
sketch3.addGeometry(Part.Circle(V(69.2, -33, 0), V(0, 0, 1), 2), False)
sketch3.addGeometry(Part.Circle(V(69.2, -45, 0), V(0, 0, 1), 2), False)
sketch3.addGeometry(Part.Circle(V(77.2, -45, 0), V(0, 0, 1), 2), False)
sketch3.addGeometry(Part.Circle(V(77.2, -33, 0), V(0, 0, 1), 2), False)
sketch3.addConstraint(Sketcher.Constraint("Equal", 0, 1))
sketch3.addConstraint(Sketcher.Constraint("Equal", 1, 2))
sketch3.addConstraint(Sketcher.Constraint("Equal", 2, 3))
sketch3.addConstraint(Sketcher.Constraint("Equal", 3, 4))
sketch3.addConstraint(Sketcher.Constraint("Equal", 4, 5))
sketch3.addConstraint(Sketcher.Constraint("Equal", 5, 6))
sketch3.addConstraint(Sketcher.Constraint("Equal", 6, 7))
sketch3.addConstraint(Sketcher.Constraint("Equal", 7, 8))
sketch3.addConstraint(Sketcher.Constraint("Equal", 8, 9))
sketch3.addConstraint(Sketcher.Constraint("Equal", 9, 10))
sketch3.addConstraint(Sketcher.Constraint("Equal", 10, 11))
sketch3.addConstraint(Sketcher.Constraint("Horizontal", 0, 3, 1, 3))
sketch3.addConstraint(Sketcher.Constraint("Horizontal", 2, 3, 3, 3))
sketch3.addConstraint(Sketcher.Constraint("Horizontal", 1, 3, 4, 3))
sketch3.addConstraint(Sketcher.Constraint("Horizontal", 4, 3, 5, 3))
sketch3.addConstraint(Sketcher.Constraint("Horizontal", 3, 3, 6, 3))
sketch3.addConstraint(Sketcher.Constraint("Horizontal", 6, 3, 7, 3))
sketch3.addConstraint(Sketcher.Constraint("Horizontal", 5, 3, 8, 3))
sketch3.addConstraint(Sketcher.Constraint("Horizontal", 7, 3, 9, 3))
sketch3.addConstraint(Sketcher.Constraint("Horizontal", 9, 3, 10, 3))
sketch3.addConstraint(Sketcher.Constraint("Horizontal", 8, 3, 11, 3))
sketch3.addConstraint(Sketcher.Constraint("Vertical", 0, 3, 2, 3))
sketch3.addConstraint(Sketcher.Constraint("Vertical", 1, 3, 3, 3))
sketch3.addConstraint(Sketcher.Constraint("Vertical", 4, 3, 6, 3))
sketch3.addConstraint(Sketcher.Constraint("Vertical", 5, 3, 7, 3))
sketch3.addConstraint(Sketcher.Constraint("Vertical", 8, 3, 9, 3))
sketch3.addConstraint(Sketcher.Constraint("Vertical", 10, 3, 11, 3))
sketch3.addConstraint(Sketcher.Constraint("Diameter", 0, Q("4 mm")))
sketch3.addConstraint(Sketcher.Constraint("DistanceY", 0, 3, -1, 1, Q("33 mm")))
sketch3.addConstraint(Sketcher.Constraint("DistanceY", 2, 3, -1, 1, Q("45 mm")))
sketch3.addConstraint(Sketcher.Constraint("DistanceX", 1, 3, 0, 3, Q("8 mm")))
sketch3.addConstraint(Sketcher.Constraint("DistanceX", 4, 3, 1, 3, Q("22 mm")))
sketch3.addConstraint(Sketcher.Constraint("DistanceX", 5, 3, 4, 3, Q("8 mm")))
sketch3.addConstraint(Sketcher.Constraint("DistanceX", 0, 3, 8, 3, Q("32 mm")))
sketch3.addConstraint(Sketcher.Constraint("DistanceX", 9, 3, 10, 3, Q("8 mm")))
sketch3.addConstraint(Sketcher.Constraint("DistanceX", -1, 1, 0, 3, Q("37.25 mm")))
sketch3.setExpression("Constraints[27]", "Params.sketch3_diameter")
pocket2 = body.newObject("PartDesign::Pocket", "Pocket001")
pocket2.Profile = sketch3
pocket2.setExpression("Length", "Params.pocket2_length")
pocket2.Reversed = True

doc.recompute()
